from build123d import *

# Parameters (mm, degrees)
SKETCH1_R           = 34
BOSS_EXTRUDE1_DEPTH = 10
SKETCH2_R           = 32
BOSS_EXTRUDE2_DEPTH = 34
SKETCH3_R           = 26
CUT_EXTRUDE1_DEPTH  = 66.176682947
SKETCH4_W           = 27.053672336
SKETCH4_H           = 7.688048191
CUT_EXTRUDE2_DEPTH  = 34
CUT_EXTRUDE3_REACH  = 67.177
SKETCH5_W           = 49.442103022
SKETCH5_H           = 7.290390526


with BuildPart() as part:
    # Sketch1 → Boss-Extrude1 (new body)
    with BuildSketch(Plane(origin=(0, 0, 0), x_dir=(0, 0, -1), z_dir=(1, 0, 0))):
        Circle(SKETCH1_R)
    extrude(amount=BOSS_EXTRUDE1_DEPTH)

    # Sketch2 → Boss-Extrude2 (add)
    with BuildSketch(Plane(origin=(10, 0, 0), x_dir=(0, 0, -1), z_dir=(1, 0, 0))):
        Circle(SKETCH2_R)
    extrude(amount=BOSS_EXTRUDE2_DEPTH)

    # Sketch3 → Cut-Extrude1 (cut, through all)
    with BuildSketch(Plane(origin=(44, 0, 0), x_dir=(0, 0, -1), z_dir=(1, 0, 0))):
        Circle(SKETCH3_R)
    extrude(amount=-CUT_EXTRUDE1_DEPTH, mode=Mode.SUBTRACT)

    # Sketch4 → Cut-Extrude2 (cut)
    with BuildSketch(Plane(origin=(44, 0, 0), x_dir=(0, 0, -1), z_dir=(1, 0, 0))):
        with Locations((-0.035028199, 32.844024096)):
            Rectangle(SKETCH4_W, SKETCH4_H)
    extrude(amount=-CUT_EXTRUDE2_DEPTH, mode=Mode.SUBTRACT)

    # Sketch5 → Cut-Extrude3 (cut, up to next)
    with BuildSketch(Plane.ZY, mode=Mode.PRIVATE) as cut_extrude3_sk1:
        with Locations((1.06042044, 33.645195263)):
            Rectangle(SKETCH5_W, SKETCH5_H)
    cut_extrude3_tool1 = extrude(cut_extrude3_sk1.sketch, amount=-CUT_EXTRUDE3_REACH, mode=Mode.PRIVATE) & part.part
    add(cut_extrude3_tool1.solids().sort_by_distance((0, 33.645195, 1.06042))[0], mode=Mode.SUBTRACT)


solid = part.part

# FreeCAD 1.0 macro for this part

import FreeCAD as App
import Part
import Sketcher
from FreeCAD import Vector
Q = App.Units.Quantity


def add_polygon(sketch, points):
    """Adds a closed chain of lines whose ends are joined by coincident constraints."""
    first, n = sketch.GeometryCount, len(points)
    for a, b in zip(points, points[1:] + points[:1]):
        sketch.addGeometry(Part.LineSegment(App.Vector(*a, 0), App.Vector(*b, 0)), False)
    for i in range(n):
        sketch.addConstraint(Sketcher.Constraint("Coincident", first + i, 2, first + (i + 1) % n, 1))

doc = App.newDocument("Part")
body = doc.addObject("PartDesign::Body", "Body")

# Sketch on YZ plane
sketch1 = body.newObject("Sketcher::SketchObject", "Sketch")
sketch1.AttachmentSupport = (doc.getObject("YZ_Plane"), [""])
sketch1.MapMode = "FlatFace"
sketch1.addGeometry(Part.Circle(Vector(0, 0, 0), Vector(0, 0, 1), 34), False)
sketch1.addConstraint(Sketcher.Constraint("Coincident", 0, 3, -1, 1))
sketch1.addConstraint(Sketcher.Constraint("Diameter", 0, Q("68 mm")))
pad1 = body.newObject("PartDesign::Pad", "Pad")
pad1.Profile = sketch1
pad1.Length = 10

# Sketch on YZ plane
sketch2 = body.newObject("Sketcher::SketchObject", "Sketch001")
sketch2.AttachmentSupport = (doc.getObject("YZ_Plane"), [""])
sketch2.MapMode = "FlatFace"
sketch2.AttachmentOffset = App.Placement(Vector(0, 0, 10), App.Rotation())
sketch2.addGeometry(Part.Circle(Vector(0, 0, 0), Vector(0, 0, 1), 32), False)
sketch2.addConstraint(Sketcher.Constraint("Coincident", 0, 3, -1, 1))
sketch2.addConstraint(Sketcher.Constraint("Diameter", 0, Q("64 mm")))
pad2 = body.newObject("PartDesign::Pad", "Pad001")
pad2.Profile = sketch2
pad2.Length = 34

# Sketch on YZ plane
sketch3 = body.newObject("Sketcher::SketchObject", "Sketch002")
sketch3.AttachmentSupport = (doc.getObject("YZ_Plane"), [""])
sketch3.MapMode = "FlatFace"
sketch3.AttachmentOffset = App.Placement(Vector(0, 0, 44), App.Rotation())
sketch3.addGeometry(Part.Circle(Vector(0, 0, 0), Vector(0, 0, 1), 26), False)
sketch3.addConstraint(Sketcher.Constraint("Coincident", 0, 3, -1, 1))
sketch3.addConstraint(Sketcher.Constraint("Diameter", 0, Q("52 mm")))
pocket1 = body.newObject("PartDesign::Pocket", "Pocket")
pocket1.Profile = sketch3
pocket1.Type = "ThroughAll"

# Sketch on YZ plane
sketch4 = body.newObject("Sketcher::SketchObject", "Sketch003")
sketch4.AttachmentSupport = (doc.getObject("YZ_Plane"), [""])
sketch4.MapMode = "FlatFace"
sketch4.AttachmentOffset = App.Placement(Vector(0, 0, 44), App.Rotation())
add_polygon(sketch4, [(37, 14), (29, 14), (29, -13), (37, -13)])  # lines 0-3
sketch4.addConstraint(Sketcher.Constraint("Horizontal", 0))
sketch4.addConstraint(Sketcher.Constraint("Vertical", 1))
sketch4.addConstraint(Sketcher.Constraint("Horizontal", 2))
sketch4.addConstraint(Sketcher.Constraint("Vertical", 3))
sketch4.addConstraint(Sketcher.Constraint("DistanceX", -1, 1, 0, 2, Q("29 mm")))
sketch4.addConstraint(Sketcher.Constraint("DistanceX", 0, 2, 0, 1, Q("7.688048 mm")))
sketch4.addConstraint(Sketcher.Constraint("DistanceY", 1, 2, 1, 1, Q("27.053672 mm")))
sketch4.addConstraint(Sketcher.Constraint("DistanceY", -1, 1, 0, 2, Q("13.561864 mm")))
pocket2 = body.newObject("PartDesign::Pocket", "Pocket001")
pocket2.Profile = sketch4
pocket2.Length = 34

# Sketch on YZ plane
sketch5 = body.newObject("Sketcher::SketchObject", "Sketch004")
sketch5.AttachmentSupport = (doc.getObject("YZ_Plane"), [""])
sketch5.MapMode = "FlatFace"
add_polygon(sketch5, [(37, -24), (30, -24), (30, 26), (37, 26)])  # lines 0-3
sketch5.addConstraint(Sketcher.Constraint("Horizontal", 0))
sketch5.addConstraint(Sketcher.Constraint("Vertical", 1))
sketch5.addConstraint(Sketcher.Constraint("Horizontal", 2))
sketch5.addConstraint(Sketcher.Constraint("Vertical", 3))
sketch5.addConstraint(Sketcher.Constraint("DistanceX", -1, 1, 0, 2, Q("30 mm")))
sketch5.addConstraint(Sketcher.Constraint("DistanceX", 0, 2, 0, 1, Q("7.290391 mm")))
sketch5.addConstraint(Sketcher.Constraint("DistanceY", 1, 1, 1, 2, Q("49.442103 mm")))
sketch5.addConstraint(Sketcher.Constraint("DistanceY", 0, 2, -1, 1, Q("23.660631 mm")))
pocket3 = body.newObject("PartDesign::Pocket", "Pocket002")
pocket3.Profile = sketch5
pocket3.Type = "UpToFirst"
pocket3.Reversed = True

doc.recompute()
